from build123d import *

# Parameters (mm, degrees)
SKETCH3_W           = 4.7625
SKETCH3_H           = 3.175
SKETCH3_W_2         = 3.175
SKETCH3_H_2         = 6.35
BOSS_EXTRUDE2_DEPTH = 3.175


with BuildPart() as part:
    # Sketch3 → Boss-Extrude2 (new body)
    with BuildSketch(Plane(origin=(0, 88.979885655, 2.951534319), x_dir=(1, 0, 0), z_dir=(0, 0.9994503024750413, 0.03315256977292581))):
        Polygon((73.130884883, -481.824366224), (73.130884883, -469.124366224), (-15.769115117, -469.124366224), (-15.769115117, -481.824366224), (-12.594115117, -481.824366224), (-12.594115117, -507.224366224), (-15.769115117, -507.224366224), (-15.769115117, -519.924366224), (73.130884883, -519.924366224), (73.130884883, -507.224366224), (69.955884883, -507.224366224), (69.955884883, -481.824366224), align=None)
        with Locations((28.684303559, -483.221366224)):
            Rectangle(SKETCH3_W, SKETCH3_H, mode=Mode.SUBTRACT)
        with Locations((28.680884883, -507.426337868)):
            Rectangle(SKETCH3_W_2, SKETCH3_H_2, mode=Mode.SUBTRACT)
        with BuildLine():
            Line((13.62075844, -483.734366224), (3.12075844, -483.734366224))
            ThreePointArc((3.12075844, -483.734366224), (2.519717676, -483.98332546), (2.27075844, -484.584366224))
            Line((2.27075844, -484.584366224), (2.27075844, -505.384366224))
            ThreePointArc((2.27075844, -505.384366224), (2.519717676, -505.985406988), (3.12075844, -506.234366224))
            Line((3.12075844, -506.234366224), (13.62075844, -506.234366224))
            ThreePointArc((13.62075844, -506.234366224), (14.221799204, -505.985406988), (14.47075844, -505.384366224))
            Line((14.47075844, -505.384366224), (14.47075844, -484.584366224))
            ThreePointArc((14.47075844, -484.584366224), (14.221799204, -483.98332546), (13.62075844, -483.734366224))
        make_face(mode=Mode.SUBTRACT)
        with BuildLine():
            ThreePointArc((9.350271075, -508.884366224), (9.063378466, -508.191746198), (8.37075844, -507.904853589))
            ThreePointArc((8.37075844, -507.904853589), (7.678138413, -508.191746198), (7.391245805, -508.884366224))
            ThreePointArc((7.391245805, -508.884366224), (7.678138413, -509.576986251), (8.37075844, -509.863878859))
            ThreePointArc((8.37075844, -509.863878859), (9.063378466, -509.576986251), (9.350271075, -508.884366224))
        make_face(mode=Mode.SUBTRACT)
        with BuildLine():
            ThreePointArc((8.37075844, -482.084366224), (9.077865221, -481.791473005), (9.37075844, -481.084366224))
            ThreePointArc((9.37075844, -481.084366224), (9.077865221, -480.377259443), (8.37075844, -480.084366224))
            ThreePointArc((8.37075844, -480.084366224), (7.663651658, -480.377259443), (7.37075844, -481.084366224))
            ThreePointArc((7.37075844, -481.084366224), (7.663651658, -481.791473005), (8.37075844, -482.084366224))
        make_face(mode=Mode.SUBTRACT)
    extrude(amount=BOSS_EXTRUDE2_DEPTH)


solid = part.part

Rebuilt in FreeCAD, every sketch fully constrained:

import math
import FreeCAD as App
import Part
import Sketcher
from FreeCAD import Vector
Q = App.Units.Quantity

doc = App.newDocument("Part")
body = doc.addObject("PartDesign::Body", "Body")

# Sketch on an angled plane
sketch1 = body.newObject("Sketcher::SketchObject", "Sketch")
sketch1.Placement = App.Placement(Vector(0, 88.979886, 2.951534), App.Rotation(Vector(1, 0, 0), Vector(0, 0.03315257, -0.999450302), Vector(0, 0.999450302, 0.03315257), "ZXY"))
sketch1.addGeometry([
    Part.LineSegment(Vector(73.130885, -481.824366, 0), Vector(73.130885, -469.124366, 0)),  # 0
    Part.LineSegment(Vector(73.130885, -469.124366, 0), Vector(-15.769115, -469.124366, 0)),  # 1
    Part.LineSegment(Vector(-15.769115, -469.124366, 0), Vector(-15.769115, -481.824366, 0)),  # 2
    Part.LineSegment(Vector(-15.769115, -481.824366, 0), Vector(-12.594115, -481.824366, 0)),  # 3
    Part.LineSegment(Vector(-12.594115, -481.824366, 0), Vector(-12.594115, -507.224366, 0)),  # 4
    Part.LineSegment(Vector(-12.594115, -507.224366, 0), Vector(-15.769115, -507.224366, 0)),  # 5
    Part.LineSegment(Vector(-15.769115, -507.224366, 0), Vector(-15.769115, -519.924366, 0)),  # 6
    Part.LineSegment(Vector(-15.769115, -519.924366, 0), Vector(73.130885, -519.924366, 0)),  # 7
    Part.LineSegment(Vector(73.130885, -519.924366, 0), Vector(73.130885, -507.224366, 0)),  # 8
    Part.LineSegment(Vector(73.130885, -507.224366, 0), Vector(69.955885, -507.224366, 0)),  # 9
    Part.LineSegment(Vector(69.955885, -507.224366, 0), Vector(69.955885, -481.824366, 0)),  # 10
    Part.LineSegment(Vector(69.955885, -481.824366, 0), Vector(73.130885, -481.824366, 0)),  # 11
    Part.ArcOfCircle(Part.Circle(Vector(8.370758, -508.884366, 0), Vector(0, 0, 1), 0.979513), math.radians(0), math.radians(90)),  # 12
    Part.ArcOfCircle(Part.Circle(Vector(8.370758, -508.884366, 0), Vector(0, 0, 1), 0.979513), math.radians(-90), math.radians(0)),  # 13
    Part.ArcOfCircle(Part.Circle(Vector(8.370758, -508.884366, 0), Vector(0, 0, 1), 0.979513), math.radians(180), math.radians(270)),  # 14
    Part.ArcOfCircle(Part.Circle(Vector(8.370758, -508.884366, 0), Vector(0, 0, 1), 0.979513), math.radians(90), math.radians(180)),  # 15
    Part.LineSegment(Vector(30.268385, -510.601337, 0), Vector(27.093385, -510.601337, 0)),  # 16
    Part.LineSegment(Vector(27.093385, -510.601337, 0), Vector(27.093385, -504.251337, 0)),  # 17
    Part.LineSegment(Vector(27.093385, -504.251337, 0), Vector(30.268385, -504.251337, 0)),  # 18
    Part.LineSegment(Vector(30.268385, -504.251337, 0), Vector(30.268385, -510.601337, 0)),  # 19
    Part.LineSegment(Vector(3.120758, -483.734366, 0), Vector(13.620758, -483.734366, 0)),  # 20
    Part.ArcOfCircle(Part.Circle(Vector(13.620758, -484.584366, 0), Vector(0, 0, 1), 0.85), math.radians(0), math.radians(90)),  # 21
    Part.LineSegment(Vector(14.470758, -484.584366, 0), Vector(14.470758, -505.384366, 0)),  # 22
    Part.ArcOfCircle(Part.Circle(Vector(13.620758, -505.384366, 0), Vector(0, 0, 1), 0.85), math.radians(-90), math.radians(0)),  # 23
    Part.LineSegment(Vector(13.620758, -506.234366, 0), Vector(3.120758, -506.234366, 0)),  # 24
    Part.ArcOfCircle(Part.Circle(Vector(3.120758, -505.384366, 0), Vector(0, 0, 1), 0.85), math.radians(180), math.radians(270)),  # 25
    Part.LineSegment(Vector(2.270758, -505.384366, 0), Vector(2.270758, -484.584366, 0)),  # 26
    Part.ArcOfCircle(Part.Circle(Vector(3.120758, -484.584366, 0), Vector(0, 0, 1), 0.85), math.radians(90), math.radians(180)),  # 27
    Part.ArcOfCircle(Part.Circle(Vector(8.370758, -481.084366, 0), Vector(0, 0, 1), 1), math.radians(-90), math.radians(0)),  # 28
    Part.ArcOfCircle(Part.Circle(Vector(8.370758, -481.084366, 0), Vector(0, 0, 1), 1), math.radians(180), math.radians(270)),  # 29
    Part.ArcOfCircle(Part.Circle(Vector(8.370758, -481.084366, 0), Vector(0, 0, 1), 1), math.radians(90), math.radians(180)),  # 30
    Part.ArcOfCircle(Part.Circle(Vector(8.370758, -481.084366, 0), Vector(0, 0, 1), 1), math.radians(0), math.radians(90)),  # 31
    Part.LineSegment(Vector(31.065554, -484.808866, 0), Vector(26.303054, -484.808866, 0)),  # 32
    Part.LineSegment(Vector(26.303054, -484.808866, 0), Vector(26.303054, -481.633866, 0)),  # 33
    Part.LineSegment(Vector(26.303054, -481.633866, 0), Vector(31.065554, -481.633866, 0)),  # 34
    Part.LineSegment(Vector(31.065554, -481.633866, 0), Vector(31.065554, -484.808866, 0)),  # 35
], False)
sketch1.addConstraint([
    Sketcher.Constraint("Coincident", 0, 2, 1, 1),
    Sketcher.Constraint("Coincident", 1, 2, 2, 1),
    Sketcher.Constraint("Coincident", 2, 2, 3, 1),
    Sketcher.Constraint("Coincident", 3, 2, 4, 1),
    Sketcher.Constraint("Coincident", 4, 2, 5, 1),
    Sketcher.Constraint("Coincident", 5, 2, 6, 1),
    Sketcher.Constraint("Coincident", 6, 2, 7, 1),
    Sketcher.Constraint("Coincident", 7, 2, 8, 1),
    Sketcher.Constraint("Coincident", 8, 2, 9, 1),
    Sketcher.Constraint("Coincident", 9, 2, 10, 1),
    Sketcher.Constraint("Coincident", 10, 2, 11, 1),
    Sketcher.Constraint("Coincident", 11, 2, 0, 1),
    Sketcher.Constraint("Tangent", 12, 1, 13, 2),
    Sketcher.Constraint("Tangent", 13, 1, 14, 2),
    Sketcher.Constraint("Tangent", 14, 1, 15, 2),
    Sketcher.Constraint("Tangent", 15, 1, 12, 2),
    Sketcher.Constraint("Coincident", 16, 2, 17, 1),
    Sketcher.Constraint("Coincident", 17, 2, 18, 1),
    Sketcher.Constraint("Coincident", 18, 2, 19, 1),
    Sketcher.Constraint("Coincident", 19, 2, 16, 1),
    Sketcher.Constraint("Tangent", 20, 2, 21, 2),
    Sketcher.Constraint("Tangent", 21, 1, 22, 1),
    Sketcher.Constraint("Tangent", 22, 2, 23, 2),
    Sketcher.Constraint("Tangent", 23, 1, 24, 1),
    Sketcher.Constraint("Tangent", 24, 2, 25, 2),
    Sketcher.Constraint("Tangent", 25, 1, 26, 1),
    Sketcher.Constraint("Tangent", 26, 2, 27, 2),
    Sketcher.Constraint("Tangent", 27, 1, 20, 1),
    Sketcher.Constraint("Tangent", 28, 1, 29, 2),
    Sketcher.Constraint("Tangent", 29, 1, 30, 2),
    Sketcher.Constraint("Tangent", 30, 1, 31, 2),
    Sketcher.Constraint("Tangent", 31, 1, 28, 2),
    Sketcher.Constraint("Coincident", 32, 2, 33, 1),
    Sketcher.Constraint("Coincident", 33, 2, 34, 1),
    Sketcher.Constraint("Coincident", 34, 2, 35, 1),
    Sketcher.Constraint("Coincident", 35, 2, 32, 1),
    Sketcher.Constraint("Vertical", 0),
    Sketcher.Constraint("Horizontal", 1),
    Sketcher.Constraint("Vertical", 2),
    Sketcher.Constraint("Horizontal", 3),
    Sketcher.Constraint("Vertical", 4),
    Sketcher.Constraint("Horizontal", 5),
    Sketcher.Constraint("Vertical", 6),
    Sketcher.Constraint("Horizontal", 7),
    Sketcher.Constraint("Vertical", 8),
    Sketcher.Constraint("Horizontal", 9),
    Sketcher.Constraint("Vertical", 10),
    Sketcher.Constraint("Horizontal", 11),
    Sketcher.Constraint("Horizontal", 16),
    Sketcher.Constraint("Vertical", 17),
    Sketcher.Constraint("Horizontal", 18),
    Sketcher.Constraint("Vertical", 19),
    Sketcher.Constraint("Horizontal", 20),
    Sketcher.Constraint("Vertical", 22),
    Sketcher.Constraint("Horizontal", 24),
    Sketcher.Constraint("Vertical", 26),
    Sketcher.Constraint("Horizontal", 32),
    Sketcher.Constraint("Vertical", 33),
    Sketcher.Constraint("Horizontal", 34),
    Sketcher.Constraint("Vertical", 35),
    Sketcher.Constraint("Equal", 12, 13),
    Sketcher.Constraint("Equal", 21, 23),
    Sketcher.Constraint("Equal", 23, 25),
    Sketcher.Constraint("Equal", 25, 27),
    Sketcher.Constraint("Equal", 28, 29),
    Sketcher.Constraint("Horizontal", 5, 2, 8, 2),
    Sketcher.Constraint("Horizontal", 3, 2, 10, 2),
    Sketcher.Constraint("Horizontal", 15, 3, 12, 1),
    Sketcher.Constraint("Horizontal", 12, 1, 14, 1),
    Sketcher.Constraint("Horizontal", 31, 3, 29, 1),
    Sketcher.Constraint("Horizontal", 29, 1, 31, 1),
    Sketcher.Constraint("Vertical", 15, 3, 28, 3),
    Sketcher.Constraint("Vertical", 2, 2, 5, 2),
    Sketcher.Constraint("Vertical", 0, 2, 7, 2),
    Sketcher.Constraint("Vertical", 31, 3, 13, 1),
    Sketcher.Constraint("Vertical", 13, 1, 15, 1),
    Sketcher.Constraint("Vertical", 15, 1, 28, 1),
    Sketcher.Constraint("Vertical", 28, 1, 30, 1),
    Sketcher.Constraint("Equal", 5, 9),
    Sketcher.Constraint("Equal", 11, 16),
    Sketcher.Constraint("Equal", 2, 6),
    Sketcher.Constraint("Equal", 18, 33),
    Sketcher.Constraint("DistanceY", 4, 2, 4, 1, Q("1 in")),
    Sketcher.Constraint("DistanceX", 1, 2, 1, 1, Q("3.5 in")),
    Sketcher.Constraint("DistanceY", 0, 1, 0, 2, Q("0.5 in")),
    Sketcher.Constraint("DistanceY", 17, 1, 17, 2, Q("0.25 in")),
    Sketcher.Constraint("DistanceX", 3, 1, 3, 2, Q("0.125 in")),
    Sketcher.Constraint("DistanceX", 32, 2, 32, 1, Q("0.1875 in")),
    Sketcher.Constraint("Radius", 21, 0.85),
    Sketcher.Constraint("Radius", 28, 1.0),
    Sketcher.Constraint("DistanceX", 20, 1, 20, 2, 10.5),
    Sketcher.Constraint("DistanceY", 22, 2, 22, 1, 20.8),
    Sketcher.Constraint("DistanceX", -1, 1, 25, 1, Q("0.0893999 in")),
    Sketcher.Constraint("Radius", 12, 0.979513),
    Sketcher.Constraint("DistanceX", 13, 3, 21, 3, 5.25),
    Sketcher.Constraint("DistanceY", 13, 3, 21, 3, 24.3),
    Sketcher.Constraint("DistanceY", 27, 3, 28, 3, 3.5),
    Sketcher.Constraint("DistanceY", 21, 3, 0, 2, 15.46),
    Sketcher.Constraint("DistanceY", 32, 2, 21, 1, 0.2245),
    Sketcher.Constraint("DistanceY", 13, 1, -1, 1, 509.863878),
    Sketcher.Constraint("DistanceY", 16, 2, 23, 3, 5.216972),
    Sketcher.Constraint("DistanceX", -1, 1, 0, 2, 73.130885),
    Sketcher.Constraint("DistanceX", -1, 1, 16, 2, 27.093385),
    Sketcher.Constraint("DistanceX", -1, 1, 32, 2, 26.303054),
])
pad1 = body.newObject("PartDesign::Pad", "Pad")
pad1.Profile = sketch1
pad1.Length = Q("0.125 in")

doc.recompute()
